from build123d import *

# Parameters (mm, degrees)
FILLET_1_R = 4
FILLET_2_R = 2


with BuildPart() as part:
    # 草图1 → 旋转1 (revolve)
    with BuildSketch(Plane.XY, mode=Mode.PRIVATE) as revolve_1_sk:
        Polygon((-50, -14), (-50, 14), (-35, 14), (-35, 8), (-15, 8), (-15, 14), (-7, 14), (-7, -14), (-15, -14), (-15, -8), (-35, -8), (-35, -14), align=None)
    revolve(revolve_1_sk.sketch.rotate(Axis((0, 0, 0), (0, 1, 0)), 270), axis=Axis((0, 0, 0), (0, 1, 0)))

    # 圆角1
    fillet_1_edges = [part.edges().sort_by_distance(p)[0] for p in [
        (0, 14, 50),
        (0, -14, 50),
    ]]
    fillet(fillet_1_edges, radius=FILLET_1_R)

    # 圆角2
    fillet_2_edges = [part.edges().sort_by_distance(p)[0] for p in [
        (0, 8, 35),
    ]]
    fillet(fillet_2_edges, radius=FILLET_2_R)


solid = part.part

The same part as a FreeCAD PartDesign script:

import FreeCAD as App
import Part
import Sketcher
from FreeCAD import Vector
Q = App.Units.Quantity


def edges_at(feature, points):
    """Names of the edges that pass closest to the given points."""
    edges = feature.Shape.Edges
    near = lambda p: min(range(len(edges)), key=lambda i: edges[i].distToShape(Part.Vertex(*p))[0])
    return sorted({f"Edge{near(p) + 1}" for p in points})

doc = App.newDocument("Part")
body = doc.addObject("PartDesign::Body", "Body")

sketch1 = doc.addObject("Sketcher::SketchObject", "Sketch")
body.addObject(sketch1)
sketch1.AttachmentSupport = (doc.XY_Plane, [""])
sketch1.MapMode = "FlatFace"
sketch1.addGeometry([
    Part.LineSegment(Vector(-50, 14, 0), Vector(-50, -14, 0)),
    Part.LineSegment(Vector(-50, -14, 0), Vector(-35, -14, 0)),
    Part.LineSegment(Vector(-35, -14, 0), Vector(-35, -8, 0)),
    Part.LineSegment(Vector(-35, -8, 0), Vector(-15, -8, 0)),
    Part.LineSegment(Vector(-15, -8, 0), Vector(-15, -14, 0)),
    Part.LineSegment(Vector(-15, -14, 0), Vector(-7, -14, 0)),
    Part.LineSegment(Vector(-7, -14, 0), Vector(-7, 14, 0)),
    Part.LineSegment(Vector(-7, 14, 0), Vector(-15, 14, 0)),
    Part.LineSegment(Vector(-15, 14, 0), Vector(-15, 8, 0)),
    Part.LineSegment(Vector(-15, 8, 0), Vector(-35, 8, 0)),
    Part.LineSegment(Vector(-35, 8, 0), Vector(-35, 14, 0)),
    Part.LineSegment(Vector(-35, 14, 0), Vector(-50, 14, 0)),
], False)
sketch1.addConstraint([
    Sketcher.Constraint("Coincident", 0, 2, 1, 1),
    Sketcher.Constraint("Coincident", 1, 2, 2, 1),
    Sketcher.Constraint("Coincident", 2, 2, 3, 1),
    Sketcher.Constraint("Coincident", 3, 2, 4, 1),
    Sketcher.Constraint("Coincident", 4, 2, 5, 1),
    Sketcher.Constraint("Coincident", 5, 2, 6, 1),
    Sketcher.Constraint("Coincident", 6, 2, 7, 1),
    Sketcher.Constraint("Coincident", 7, 2, 8, 1),
    Sketcher.Constraint("Coincident", 8, 2, 9, 1),
    Sketcher.Constraint("Coincident", 9, 2, 10, 1),
    Sketcher.Constraint("Coincident", 10, 2, 11, 1),
    Sketcher.Constraint("Coincident", 11, 2, 0, 1),
    Sketcher.Constraint("Vertical", 0),
    Sketcher.Constraint("Horizontal", 1),
    Sketcher.Constraint("Vertical", 2),
    Sketcher.Constraint("Horizontal", 3),
    Sketcher.Constraint("Vertical", 4),
    Sketcher.Constraint("Horizontal", 5),
    Sketcher.Constraint("Vertical", 6),
    Sketcher.Constraint("Horizontal", 7),
    Sketcher.Constraint("Vertical", 8),
    Sketcher.Constraint("Horizontal", 9),
    Sketcher.Constraint("Vertical", 10),
    Sketcher.Constraint("Horizontal", 11),
    Sketcher.Constraint("Symmetric", 4, 2, 7, 2, -1),
    Sketcher.Constraint("Symmetric", 2, 2, 9, 2, -1),
    Sketcher.Constraint("Horizontal", 1, 2, 4, 2),
    Sketcher.Constraint("Horizontal", 7, 2, 10, 2),
    Sketcher.Constraint("DistanceX", 1, 1, 1, 2, Q("15 mm")),
    Sketcher.Constraint("DistanceX", 3, 1, 3, 2, Q("20 mm")),
    Sketcher.Constraint("DistanceX", 5, 1, 5, 2, Q("8 mm")),
    Sketcher.Constraint("DistanceY", 0, 2, 0, 1, Q("28 mm")),
    Sketcher.Constraint("DistanceY", 2, 1, 2, 2, Q("6 mm")),
    Sketcher.Constraint("DistanceX", 0, 2, -1, 1, Q("50 mm")),
])
revolution = doc.addObject("PartDesign::Revolution", "Revolution")
body.addObject(revolution)
revolution.Profile = sketch1
revolution.ReferenceAxis = (sketch1, ["V_Axis"])
revolution.Angle = 360
doc.recompute()

fillet = doc.addObject("PartDesign::Fillet", "Fillet")
body.addObject(fillet)
fillet.Base = (revolution, edges_at(revolution, [(0, 14, 50), (0, -14, 50)]))
fillet.Radius = 4
doc.recompute()

fillet2 = doc.addObject("PartDesign::Fillet", "Fillet001")
body.addObject(fillet2)
fillet2.Base = (fillet, edges_at(fillet, [(0, 8, 35)]))
fillet2.Radius = 2

doc.recompute()
